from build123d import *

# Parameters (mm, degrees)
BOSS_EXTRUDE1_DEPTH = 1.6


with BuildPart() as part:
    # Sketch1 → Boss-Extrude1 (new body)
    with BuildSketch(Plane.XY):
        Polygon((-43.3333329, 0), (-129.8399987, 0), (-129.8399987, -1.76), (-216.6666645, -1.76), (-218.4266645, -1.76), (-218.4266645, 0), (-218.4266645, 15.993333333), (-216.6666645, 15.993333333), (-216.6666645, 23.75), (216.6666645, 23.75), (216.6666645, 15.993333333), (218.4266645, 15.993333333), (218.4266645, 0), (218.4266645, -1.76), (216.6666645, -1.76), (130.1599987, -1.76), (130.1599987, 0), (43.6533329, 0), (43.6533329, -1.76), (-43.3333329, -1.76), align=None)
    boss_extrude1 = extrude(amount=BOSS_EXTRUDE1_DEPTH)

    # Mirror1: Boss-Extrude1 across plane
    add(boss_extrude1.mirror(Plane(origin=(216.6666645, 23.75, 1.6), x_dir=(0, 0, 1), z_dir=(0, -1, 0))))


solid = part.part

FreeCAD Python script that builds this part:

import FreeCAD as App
import Part
import Sketcher

V = App.Vector
Q = App.Units.Quantity


def add_polygon(sketch, points):
    """Adds a closed chain of lines whose ends are joined by coincident constraints."""
    first, n = sketch.GeometryCount, len(points)
    for a, b in zip(points, points[1:] + points[:1]):
        sketch.addGeometry(Part.LineSegment(App.Vector(*a, 0), App.Vector(*b, 0)), False)
    for i in range(n):
        sketch.addConstraint(Sketcher.Constraint("Coincident", first + i, 2, first + (i + 1) % n, 1))

doc = App.newDocument("Part")
body = doc.addObject("PartDesign::Body", "Body")

# Sketch on XY plane
sketch1 = doc.addObject("Sketcher::SketchObject", "Sketch")
body.addObject(sketch1)
sketch1.AttachmentSupport = (doc.XY_Plane, [""])
sketch1.MapMode = "FlatFace"
add_polygon(sketch1, [(-129.839999, 0), (-43.333333, 0), (-43.333333, -1.76), (43.653333, -1.76), (43.653333, 0), (130.159999, 0), (130.159999, -1.76), (218.426664, -1.76), (218.426664, 15.993333), (216.666664, 15.993333), (216.666664, 23.75), (-216.666664, 23.75), (-216.666664, 15.993333), (-218.426664, 15.993333), (-218.426664, -1.76), (-129.839999, -1.76)])  # lines 0-15
sketch1.addConstraint(Sketcher.Constraint("Horizontal", 0))
sketch1.addConstraint(Sketcher.Constraint("Vertical", 1))
sketch1.addConstraint(Sketcher.Constraint("Horizontal", 2))
sketch1.addConstraint(Sketcher.Constraint("Vertical", 3))
sketch1.addConstraint(Sketcher.Constraint("Horizontal", 4))
sketch1.addConstraint(Sketcher.Constraint("Vertical", 5))
sketch1.addConstraint(Sketcher.Constraint("Horizontal", 6))
sketch1.addConstraint(Sketcher.Constraint("Vertical", 7))
sketch1.addConstraint(Sketcher.Constraint("Horizontal", 8))
sketch1.addConstraint(Sketcher.Constraint("Vertical", 9))
sketch1.addConstraint(Sketcher.Constraint("Horizontal", 10))
sketch1.addConstraint(Sketcher.Constraint("Vertical", 11))
sketch1.addConstraint(Sketcher.Constraint("Horizontal", 12))
sketch1.addConstraint(Sketcher.Constraint("Vertical", 13))
sketch1.addConstraint(Sketcher.Constraint("Horizontal", 14))
sketch1.addConstraint(Sketcher.Constraint("Vertical", 15))
sketch1.addConstraint(Sketcher.Constraint("Symmetric", 8, 2, 11, 2, -2))
sketch1.addConstraint(Sketcher.Constraint("Symmetric", 6, 2, 13, 2, -2))
sketch1.addConstraint(Sketcher.Constraint("PointOnObject", 0, 2, -1))
sketch1.addConstraint(Sketcher.Constraint("PointOnObject", 3, 2, -1))
sketch1.addConstraint(Sketcher.Constraint("Horizontal", 2, 2, 5, 2))
sketch1.addConstraint(Sketcher.Constraint("Equal", 0, 4))
sketch1.addConstraint(Sketcher.Constraint("Equal", 12, 1))
sketch1.addConstraint(Sketcher.Constraint("DistanceX", 8, 2, 8, 1, Q("1.76 mm")))
sketch1.addConstraint(Sketcher.Constraint("DistanceX", -1, 1, 4, 2, Q("130.159999 mm")))
sketch1.addConstraint(Sketcher.Constraint("DistanceY", -1, 1, 9, 2, Q("23.75 mm")))
sketch1.addConstraint(Sketcher.Constraint("DistanceX", 14, 2, -1, 1, Q("129.839999 mm")))
sketch1.addConstraint(Sketcher.Constraint("DistanceX", 10, 2, 10, 1, Q("433.333329 mm")))
sketch1.addConstraint(Sketcher.Constraint("DistanceX", 0, 1, 0, 2, Q("86.506666 mm")))
sketch1.addConstraint(Sketcher.Constraint("DistanceY", 7, 1, 7, 2, Q("17.753333 mm")))
pad1 = doc.addObject("PartDesign::Pad", "Pad")
body.addObject(pad1)
pad1.Profile = sketch1
pad1.Length = 1.6
doc.recompute()

datumplane = doc.addObject("PartDesign::Plane", "DatumPlane")
body.addObject(datumplane)
datumplane.AttachmentSupport = (doc.XZ_Plane, [""])
datumplane.MapMode = "FlatFace"
datumplane.AttachmentOffset = App.Placement(V(0, 0, -23.75), App.Rotation())
mirrored = doc.addObject("PartDesign::Mirrored", "Mirrored")
body.addObject(mirrored)
mirrored.Originals = [pad1]
mirrored.MirrorPlane = (datumplane, [""])
body.Tip = mirrored

doc.recompute()
